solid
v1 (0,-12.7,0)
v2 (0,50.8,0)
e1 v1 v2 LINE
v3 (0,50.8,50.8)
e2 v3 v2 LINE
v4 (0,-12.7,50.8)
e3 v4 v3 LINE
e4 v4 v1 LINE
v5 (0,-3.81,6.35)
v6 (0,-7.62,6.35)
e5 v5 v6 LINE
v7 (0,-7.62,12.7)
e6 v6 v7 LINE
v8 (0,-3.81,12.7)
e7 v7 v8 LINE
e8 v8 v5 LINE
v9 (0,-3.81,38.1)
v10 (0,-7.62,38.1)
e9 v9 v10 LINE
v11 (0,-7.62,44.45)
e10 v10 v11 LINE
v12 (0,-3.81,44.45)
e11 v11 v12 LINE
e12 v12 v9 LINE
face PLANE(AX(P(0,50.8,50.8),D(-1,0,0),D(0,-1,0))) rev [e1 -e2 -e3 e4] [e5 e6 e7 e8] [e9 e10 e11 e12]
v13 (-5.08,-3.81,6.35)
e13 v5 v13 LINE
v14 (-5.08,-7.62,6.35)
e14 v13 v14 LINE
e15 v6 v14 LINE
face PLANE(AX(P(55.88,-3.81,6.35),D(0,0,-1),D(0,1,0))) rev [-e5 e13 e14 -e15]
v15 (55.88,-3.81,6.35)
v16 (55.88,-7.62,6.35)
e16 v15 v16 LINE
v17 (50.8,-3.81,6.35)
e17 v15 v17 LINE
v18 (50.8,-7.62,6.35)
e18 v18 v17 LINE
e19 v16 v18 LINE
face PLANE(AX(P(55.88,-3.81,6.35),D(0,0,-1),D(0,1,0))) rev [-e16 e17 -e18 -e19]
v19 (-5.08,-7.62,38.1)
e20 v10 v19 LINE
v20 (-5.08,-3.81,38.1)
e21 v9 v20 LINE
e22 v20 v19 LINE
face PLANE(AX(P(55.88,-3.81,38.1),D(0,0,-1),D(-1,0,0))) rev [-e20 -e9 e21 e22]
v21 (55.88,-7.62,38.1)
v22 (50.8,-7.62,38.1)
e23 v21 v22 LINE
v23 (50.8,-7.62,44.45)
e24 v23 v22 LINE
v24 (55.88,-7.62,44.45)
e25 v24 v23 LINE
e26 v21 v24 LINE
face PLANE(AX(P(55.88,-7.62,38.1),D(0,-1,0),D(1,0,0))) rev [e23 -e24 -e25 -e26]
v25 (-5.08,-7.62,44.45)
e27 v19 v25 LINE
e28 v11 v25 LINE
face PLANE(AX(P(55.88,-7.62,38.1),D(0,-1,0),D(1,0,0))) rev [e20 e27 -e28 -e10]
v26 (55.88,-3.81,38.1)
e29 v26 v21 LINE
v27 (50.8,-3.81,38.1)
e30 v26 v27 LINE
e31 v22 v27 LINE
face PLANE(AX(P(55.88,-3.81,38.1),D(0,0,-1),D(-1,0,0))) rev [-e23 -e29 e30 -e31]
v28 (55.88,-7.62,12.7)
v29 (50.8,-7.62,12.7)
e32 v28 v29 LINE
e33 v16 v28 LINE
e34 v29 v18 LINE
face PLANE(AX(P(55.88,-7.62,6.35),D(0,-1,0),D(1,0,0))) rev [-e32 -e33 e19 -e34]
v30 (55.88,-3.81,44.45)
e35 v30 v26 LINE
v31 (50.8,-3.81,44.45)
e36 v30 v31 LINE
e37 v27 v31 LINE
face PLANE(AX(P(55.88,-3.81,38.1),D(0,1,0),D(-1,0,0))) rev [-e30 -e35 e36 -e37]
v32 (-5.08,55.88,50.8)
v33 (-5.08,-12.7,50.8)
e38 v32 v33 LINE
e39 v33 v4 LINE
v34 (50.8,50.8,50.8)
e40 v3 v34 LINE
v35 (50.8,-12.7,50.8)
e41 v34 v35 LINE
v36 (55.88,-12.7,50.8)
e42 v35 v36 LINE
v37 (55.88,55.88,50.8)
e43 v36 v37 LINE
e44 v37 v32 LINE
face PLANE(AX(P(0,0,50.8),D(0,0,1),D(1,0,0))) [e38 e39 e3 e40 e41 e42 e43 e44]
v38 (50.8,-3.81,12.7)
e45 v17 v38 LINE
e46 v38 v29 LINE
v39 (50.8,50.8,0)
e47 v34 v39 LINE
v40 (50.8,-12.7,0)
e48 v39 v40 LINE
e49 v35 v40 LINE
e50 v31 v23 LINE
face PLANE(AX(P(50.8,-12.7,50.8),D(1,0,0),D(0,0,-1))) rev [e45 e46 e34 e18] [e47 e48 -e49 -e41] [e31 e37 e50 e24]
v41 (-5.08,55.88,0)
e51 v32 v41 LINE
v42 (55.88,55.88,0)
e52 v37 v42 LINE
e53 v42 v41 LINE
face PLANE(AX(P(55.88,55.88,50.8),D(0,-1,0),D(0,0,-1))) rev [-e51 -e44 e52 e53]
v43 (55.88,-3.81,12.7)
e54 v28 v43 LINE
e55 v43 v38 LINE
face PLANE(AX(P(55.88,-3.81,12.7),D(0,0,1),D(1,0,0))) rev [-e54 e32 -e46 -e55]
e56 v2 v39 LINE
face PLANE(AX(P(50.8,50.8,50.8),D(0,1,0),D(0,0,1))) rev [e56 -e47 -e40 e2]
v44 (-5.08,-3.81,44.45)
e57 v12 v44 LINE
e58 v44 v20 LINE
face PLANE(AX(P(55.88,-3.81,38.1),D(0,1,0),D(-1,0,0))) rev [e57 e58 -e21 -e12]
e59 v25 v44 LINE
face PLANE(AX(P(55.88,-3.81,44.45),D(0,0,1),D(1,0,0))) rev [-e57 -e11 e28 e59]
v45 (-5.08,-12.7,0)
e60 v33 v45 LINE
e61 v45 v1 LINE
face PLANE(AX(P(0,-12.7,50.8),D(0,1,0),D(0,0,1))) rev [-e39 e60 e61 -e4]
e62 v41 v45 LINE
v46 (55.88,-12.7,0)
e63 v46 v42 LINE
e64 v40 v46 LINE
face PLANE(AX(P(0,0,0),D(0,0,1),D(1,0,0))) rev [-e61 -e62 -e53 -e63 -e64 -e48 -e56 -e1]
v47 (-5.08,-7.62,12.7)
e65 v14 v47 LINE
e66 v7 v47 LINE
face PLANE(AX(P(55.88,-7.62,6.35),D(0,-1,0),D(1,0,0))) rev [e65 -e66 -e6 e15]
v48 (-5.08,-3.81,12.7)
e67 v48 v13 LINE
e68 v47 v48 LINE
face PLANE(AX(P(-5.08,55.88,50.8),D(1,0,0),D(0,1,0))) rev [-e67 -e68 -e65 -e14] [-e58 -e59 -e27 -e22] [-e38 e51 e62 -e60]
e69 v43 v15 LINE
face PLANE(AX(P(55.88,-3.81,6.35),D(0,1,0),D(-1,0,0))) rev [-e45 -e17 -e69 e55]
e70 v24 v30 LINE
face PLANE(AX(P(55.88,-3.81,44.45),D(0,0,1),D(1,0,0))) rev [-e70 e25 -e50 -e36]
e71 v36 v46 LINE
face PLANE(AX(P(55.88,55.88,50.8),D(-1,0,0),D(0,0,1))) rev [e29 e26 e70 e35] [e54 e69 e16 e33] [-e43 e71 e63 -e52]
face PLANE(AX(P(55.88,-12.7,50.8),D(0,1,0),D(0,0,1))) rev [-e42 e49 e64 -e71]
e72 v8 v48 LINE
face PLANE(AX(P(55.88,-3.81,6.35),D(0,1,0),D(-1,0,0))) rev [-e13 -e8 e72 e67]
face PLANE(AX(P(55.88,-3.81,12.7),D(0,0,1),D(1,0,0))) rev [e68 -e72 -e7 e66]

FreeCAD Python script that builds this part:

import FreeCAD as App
import Part
import Sketcher

V = App.Vector
Q = App.Units.Quantity

doc = App.newDocument("Part")
body = doc.addObject("PartDesign::Body", "Body")

# Sketch on XY plane
sketch1 = body.newObject("Sketcher::SketchObject", "Sketch")
sketch1.AttachmentSupport = (doc.getObject("XY_Plane"), [""])
sketch1.MapMode = "FlatFace"
sketch1.addGeometry([
    Part.LineSegment(V(56, -13, 0), V(56, 56, 0)),  # 0
    Part.LineSegment(V(56, 56, 0), V(-5, 56, 0)),  # 1
    Part.LineSegment(V(-5, 56, 0), V(-5, -13, 0)),  # 2
    Part.LineSegment(V(-5, -13, 0), V(0, -13, 0)),  # 3
    Part.LineSegment(V(0, -13, 0), V(0, 51, 0)),  # 4
    Part.LineSegment(V(0, 51, 0), V(51, 51, 0)),  # 5
    Part.LineSegment(V(51, 51, 0), V(51, -13, 0)),  # 6
    Part.LineSegment(V(51, -13, 0), V(56, -13, 0)),  # 7
], False)
sketch1.addConstraint([
    Sketcher.Constraint("Coincident", 0, 2, 1, 1),
    Sketcher.Constraint("Coincident", 1, 2, 2, 1),
    Sketcher.Constraint("Coincident", 2, 2, 3, 1),
    Sketcher.Constraint("Coincident", 3, 2, 4, 1),
    Sketcher.Constraint("Coincident", 4, 2, 5, 1),
    Sketcher.Constraint("Coincident", 5, 2, 6, 1),
    Sketcher.Constraint("Coincident", 6, 2, 7, 1),
    Sketcher.Constraint("Coincident", 7, 2, 0, 1),
    Sketcher.Constraint("Vertical", 0),
    Sketcher.Constraint("Horizontal", 1),
    Sketcher.Constraint("Vertical", 2),
    Sketcher.Constraint("Horizontal", 3),
    Sketcher.Constraint("Vertical", 4),
    Sketcher.Constraint("Horizontal", 5),
    Sketcher.Constraint("Vertical", 6),
    Sketcher.Constraint("Horizontal", 7),
    Sketcher.Constraint("PointOnObject", 3, 2, -2),
    Sketcher.Constraint("Horizontal", 3, 2, 6, 2),
    Sketcher.Constraint("Equal", 3, 7),
    Sketcher.Constraint("DistanceX", 5, 1, 5, 2, Q("2 in")),
    Sketcher.Constraint("DistanceX", 1, 2, 1, 1, Q("2.4 in")),
    Sketcher.Constraint("DistanceY", 0, 1, 0, 2, Q("2.7 in")),
    Sketcher.Constraint("DistanceY", 4, 1, 4, 2, Q("2.5 in")),
    Sketcher.Constraint("DistanceY", -1, 1, 4, 2, Q("2 in")),
])
pad1 = body.newObject("PartDesign::Pad", "Pad")
pad1.Profile = sketch1
pad1.Length = Q("2 in")

# Sketch on YZ plane
sketch2 = body.newObject("Sketcher::SketchObject", "Sketch001")
sketch2.AttachmentSupport = (doc.getObject("YZ_Plane"), [""])
sketch2.MapMode = "FlatFace"
sketch2.AttachmentOffset = App.Placement(V(0, 0, -0.2 * 25.4), App.Rotation())
sketch2.addGeometry([
    Part.LineSegment(V(-3.8, 6.3, 0), V(-7.6, 6.3, 0)),  # 0
    Part.LineSegment(V(-7.6, 6.3, 0), V(-7.6, 12.7, 0)),  # 1
    Part.LineSegment(V(-7.6, 12.7, 0), V(-3.8, 12.7, 0)),  # 2
    Part.LineSegment(V(-3.8, 12.7, 0), V(-3.8, 6.3, 0)),  # 3
    Part.LineSegment(V(-3.8, 38.1, 0), V(-7.6, 38.1, 0)),  # 4
    Part.LineSegment(V(-7.6, 38.1, 0), V(-7.6, 44.5, 0)),  # 5
    Part.LineSegment(V(-7.6, 44.5, 0), V(-3.8, 44.5, 0)),  # 6
    Part.LineSegment(V(-3.8, 44.5, 0), V(-3.8, 38.1, 0)),  # 7
], False)
sketch2.addConstraint([
    Sketcher.Constraint("Coincident", 0, 2, 1, 1),
    Sketcher.Constraint("Coincident", 1, 2, 2, 1),
    Sketcher.Constraint("Coincident", 2, 2, 3, 1),
    Sketcher.Constraint("Coincident", 3, 2, 0, 1),
    Sketcher.Constraint("Coincident", 4, 2, 5, 1),
    Sketcher.Constraint("Coincident", 5, 2, 6, 1),
    Sketcher.Constraint("Coincident", 6, 2, 7, 1),
    Sketcher.Constraint("Coincident", 7, 2, 4, 1),
    Sketcher.Constraint("Horizontal", 0),
    Sketcher.Constraint("Vertical", 1),
    Sketcher.Constraint("Horizontal", 2),
    Sketcher.Constraint("Vertical", 3),
    Sketcher.Constraint("Horizontal", 4),
    Sketcher.Constraint("Vertical", 5),
    Sketcher.Constraint("Horizontal", 6),
    Sketcher.Constraint("Vertical", 7),
    Sketcher.Constraint("Vertical", 1, 2, 4, 2),
    Sketcher.Constraint("Vertical", 3, 2, 6, 2),
    Sketcher.Constraint("Equal", 3, 5),
    Sketcher.Constraint("DistanceY", 1, 2, 4, 2, Q("1 in")),
    Sketcher.Constraint("DistanceX", 0, 2, 0, 1, Q("0.15 in")),
    Sketcher.Constraint("DistanceY", 1, 1, 1, 2, Q("0.25 in")),
    Sketcher.Constraint("DistanceX", 0, 2, -1, 1, Q("0.3 in")),
    Sketcher.Constraint("DistanceY", -1, 1, 1, 2, Q("0.5 in")),
])
pocket1 = body.newObject("PartDesign::Pocket", "Pocket")
pocket1.Profile = sketch2
pocket1.Type = "ThroughAll"
pocket1.Reversed = True

doc.recompute()
